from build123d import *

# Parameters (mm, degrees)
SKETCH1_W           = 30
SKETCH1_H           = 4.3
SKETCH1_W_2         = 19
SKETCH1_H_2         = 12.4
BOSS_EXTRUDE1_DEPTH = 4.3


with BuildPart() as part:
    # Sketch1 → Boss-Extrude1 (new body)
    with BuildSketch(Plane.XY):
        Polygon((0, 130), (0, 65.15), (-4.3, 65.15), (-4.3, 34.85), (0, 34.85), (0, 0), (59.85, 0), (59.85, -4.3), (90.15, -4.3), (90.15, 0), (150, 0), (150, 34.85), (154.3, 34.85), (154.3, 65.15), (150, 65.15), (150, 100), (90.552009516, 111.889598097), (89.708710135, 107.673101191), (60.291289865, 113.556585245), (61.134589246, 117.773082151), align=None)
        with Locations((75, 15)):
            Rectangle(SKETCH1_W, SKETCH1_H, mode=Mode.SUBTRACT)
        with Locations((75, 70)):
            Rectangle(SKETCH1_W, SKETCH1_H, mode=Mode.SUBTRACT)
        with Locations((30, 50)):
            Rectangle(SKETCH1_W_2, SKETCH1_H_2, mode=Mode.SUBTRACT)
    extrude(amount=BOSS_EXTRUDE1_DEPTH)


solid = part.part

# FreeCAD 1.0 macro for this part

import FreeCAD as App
import Part
import Sketcher

V = App.Vector
Q = App.Units.Quantity

doc = App.newDocument("Part")
params = doc.addObject("Spreadsheet::Sheet", "Params")
for row, (alias, value) in enumerate([
    ("sketch1_width", "30 mm"),
    ("sketch1_width2", "19 mm"),
    ("sketch1_length", "30 mm"),
    ("sketch1_width3", "4.3 mm"),
    ("sketch1_width4", "30.3 mm"),
    ("pad1_length", "4.3 mm"),
], start=1):
    params.set(f"A{row}", alias)
    params.set(f"B{row}", "=" + value)
    params.setAlias(f"B{row}", alias)

body = doc.addObject("PartDesign::Body", "Body")

# Sketch on XY plane
sketch1 = doc.addObject("Sketcher::SketchObject", "Sketch")
body.addObject(sketch1)
sketch1.AttachmentSupport = (doc.XY_Plane, [""])
sketch1.MapMode = "FlatFace"
sketch1.addGeometry(Part.LineSegment(V(0, 130, 0), V(0, 65.2, 0)), False)
sketch1.addGeometry(Part.LineSegment(V(0, 65.2, 0), V(-4.3, 65.2, 0)), False)
sketch1.addGeometry(Part.LineSegment(V(-4.3, 65.2, 0), V(-4.3, 34.9, 0)), False)
sketch1.addGeometry(Part.LineSegment(V(-4.3, 34.9, 0), V(0, 34.9, 0)), False)
sketch1.addGeometry(Part.LineSegment(V(0, 34.9, 0), V(0, 0, 0)), False)
sketch1.addGeometry(Part.LineSegment(V(0, 0, 0), V(59.9, 0, 0)), False)
sketch1.addGeometry(Part.LineSegment(V(59.9, 0, 0), V(59.9, -4.3, 0)), False)
sketch1.addGeometry(Part.LineSegment(V(59.9, -4.3, 0), V(90.2, -4.3, 0)), False)
sketch1.addGeometry(Part.LineSegment(V(90.2, -4.3, 0), V(90.2, 0, 0)), False)
sketch1.addGeometry(Part.LineSegment(V(90.2, 0, 0), V(150, 0, 0)), False)
sketch1.addGeometry(Part.LineSegment(V(150, 0, 0), V(150, 34.9, 0)), False)
sketch1.addGeometry(Part.LineSegment(V(150, 34.9, 0), V(154.3, 34.9, 0)), False)
sketch1.addGeometry(Part.LineSegment(V(154.3, 34.9, 0), V(154.3, 65.2, 0)), False)
sketch1.addGeometry(Part.LineSegment(V(154.3, 65.2, 0), V(150, 65.2, 0)), False)
sketch1.addGeometry(Part.LineSegment(V(150, 65.2, 0), V(150, 100, 0)), False)
sketch1.addGeometry(Part.LineSegment(V(150, 100, 0), V(90.6, 111.9, 0)), False)
sketch1.addGeometry(Part.LineSegment(V(90.6, 111.9, 0), V(89.7, 107.7, 0)), False)
sketch1.addGeometry(Part.LineSegment(V(89.7, 107.7, 0), V(60.3, 113.6, 0)), False)
sketch1.addGeometry(Part.LineSegment(V(60.3, 113.6, 0), V(61.1, 117.8, 0)), False)
sketch1.addGeometry(Part.LineSegment(V(61.1, 117.8, 0), V(0, 130, 0)), False)
sketch1.addGeometry(Part.LineSegment(V(90, 12.8, 0), V(60, 12.8, 0)), False)
sketch1.addGeometry(Part.LineSegment(V(60, 12.8, 0), V(60, 17.1, 0)), False)
sketch1.addGeometry(Part.LineSegment(V(60, 17.1, 0), V(90, 17.1, 0)), False)
sketch1.addGeometry(Part.LineSegment(V(90, 17.1, 0), V(90, 12.8, 0)), False)
sketch1.addGeometry(Part.LineSegment(V(39.5, 43.8, 0), V(20.5, 43.8, 0)), False)
sketch1.addGeometry(Part.LineSegment(V(20.5, 43.8, 0), V(20.5, 56.2, 0)), False)
sketch1.addGeometry(Part.LineSegment(V(20.5, 56.2, 0), V(39.5, 56.2, 0)), False)
sketch1.addGeometry(Part.LineSegment(V(39.5, 56.2, 0), V(39.5, 43.8, 0)), False)
sketch1.addGeometry(Part.LineSegment(V(90, 67.8, 0), V(60, 67.8, 0)), False)
sketch1.addGeometry(Part.LineSegment(V(60, 67.8, 0), V(60, 72.2, 0)), False)
sketch1.addGeometry(Part.LineSegment(V(60, 72.2, 0), V(90, 72.2, 0)), False)
sketch1.addGeometry(Part.LineSegment(V(90, 72.2, 0), V(90, 67.8, 0)), False)
sketch1.addConstraint(Sketcher.Constraint("Coincident", 0, 2, 1, 1))
sketch1.addConstraint(Sketcher.Constraint("Coincident", 1, 2, 2, 1))
sketch1.addConstraint(Sketcher.Constraint("Coincident", 2, 2, 3, 1))
sketch1.addConstraint(Sketcher.Constraint("Coincident", 3, 2, 4, 1))
sketch1.addConstraint(Sketcher.Constraint("Coincident", 4, 2, 5, 1))
sketch1.addConstraint(Sketcher.Constraint("Coincident", 5, 2, 6, 1))
sketch1.addConstraint(Sketcher.Constraint("Coincident", 6, 2, 7, 1))
sketch1.addConstraint(Sketcher.Constraint("Coincident", 7, 2, 8, 1))
sketch1.addConstraint(Sketcher.Constraint("Coincident", 8, 2, 9, 1))
sketch1.addConstraint(Sketcher.Constraint("Coincident", 9, 2, 10, 1))
sketch1.addConstraint(Sketcher.Constraint("Coincident", 10, 2, 11, 1))
sketch1.addConstraint(Sketcher.Constraint("Coincident", 11, 2, 12, 1))
sketch1.addConstraint(Sketcher.Constraint("Coincident", 12, 2, 13, 1))
sketch1.addConstraint(Sketcher.Constraint("Coincident", 13, 2, 14, 1))
sketch1.addConstraint(Sketcher.Constraint("Coincident", 14, 2, 15, 1))
sketch1.addConstraint(Sketcher.Constraint("Coincident", 15, 2, 16, 1))
sketch1.addConstraint(Sketcher.Constraint("Coincident", 16, 2, 17, 1))
sketch1.addConstraint(Sketcher.Constraint("Coincident", 17, 2, 18, 1))
sketch1.addConstraint(Sketcher.Constraint("Coincident", 18, 2, 19, 1))
sketch1.addConstraint(Sketcher.Constraint("Coincident", 19, 2, 0, 1))
sketch1.addConstraint(Sketcher.Constraint("Coincident", 20, 2, 21, 1))
sketch1.addConstraint(Sketcher.Constraint("Coincident", 21, 2, 22, 1))
sketch1.addConstraint(Sketcher.Constraint("Coincident", 22, 2, 23, 1))
sketch1.addConstraint(Sketcher.Constraint("Coincident", 23, 2, 20, 1))
sketch1.addConstraint(Sketcher.Constraint("Coincident", 24, 2, 25, 1))
sketch1.addConstraint(Sketcher.Constraint("Coincident", 25, 2, 26, 1))
sketch1.addConstraint(Sketcher.Constraint("Coincident", 26, 2, 27, 1))
sketch1.addConstraint(Sketcher.Constraint("Coincident", 27, 2, 24, 1))
sketch1.addConstraint(Sketcher.Constraint("Coincident", 28, 2, 29, 1))
sketch1.addConstraint(Sketcher.Constraint("Coincident", 29, 2, 30, 1))
sketch1.addConstraint(Sketcher.Constraint("Coincident", 30, 2, 31, 1))
sketch1.addConstraint(Sketcher.Constraint("Coincident", 31, 2, 28, 1))
sketch1.addConstraint(Sketcher.Constraint("Vertical", 0))
sketch1.addConstraint(Sketcher.Constraint("Horizontal", 1))
sketch1.addConstraint(Sketcher.Constraint("Vertical", 2))
sketch1.addConstraint(Sketcher.Constraint("Horizontal", 3))
sketch1.addConstraint(Sketcher.Constraint("Vertical", 4))
sketch1.addConstraint(Sketcher.Constraint("Horizontal", 5))
sketch1.addConstraint(Sketcher.Constraint("Vertical", 6))
sketch1.addConstraint(Sketcher.Constraint("Horizontal", 7))
sketch1.addConstraint(Sketcher.Constraint("Vertical", 8))
sketch1.addConstraint(Sketcher.Constraint("Horizontal", 9))
sketch1.addConstraint(Sketcher.Constraint("Vertical", 10))
sketch1.addConstraint(Sketcher.Constraint("Horizontal", 11))
sketch1.addConstraint(Sketcher.Constraint("Vertical", 12))
sketch1.addConstraint(Sketcher.Constraint("Horizontal", 13))
sketch1.addConstraint(Sketcher.Constraint("Vertical", 14))
sketch1.addConstraint(Sketcher.Constraint("Horizontal", 20))
sketch1.addConstraint(Sketcher.Constraint("Vertical", 21))
sketch1.addConstraint(Sketcher.Constraint("Horizontal", 22))
sketch1.addConstraint(Sketcher.Constraint("Vertical", 23))
sketch1.addConstraint(Sketcher.Constraint("Horizontal", 24))
sketch1.addConstraint(Sketcher.Constraint("Vertical", 25))
sketch1.addConstraint(Sketcher.Constraint("Horizontal", 26))
sketch1.addConstraint(Sketcher.Constraint("Vertical", 27))
sketch1.addConstraint(Sketcher.Constraint("Horizontal", 28))
sketch1.addConstraint(Sketcher.Constraint("Vertical", 29))
sketch1.addConstraint(Sketcher.Constraint("Horizontal", 30))
sketch1.addConstraint(Sketcher.Constraint("Vertical", 31))
sketch1.addConstraint(Sketcher.Constraint("Coincident", 4, 2, -1, 1))
sketch1.addConstraint(Sketcher.Constraint("PointOnObject", 0, 2, -2))
sketch1.addConstraint(Sketcher.Constraint("PointOnObject", 8, 2, -1))
sketch1.addConstraint(Sketcher.Constraint("Perpendicular", 15, 16))
sketch1.addConstraint(Sketcher.Constraint("Perpendicular", 16, 17))
sketch1.addConstraint(Sketcher.Constraint("Perpendicular", 17, 18))
sketch1.addConstraint(Sketcher.Constraint("Perpendicular", 18, 19))
sketch1.addConstraint(Sketcher.Constraint("Horizontal", 3, 2, 10, 2))
sketch1.addConstraint(Sketcher.Constraint("Horizontal", 1, 2, 12, 2))
sketch1.addConstraint(Sketcher.Constraint("Vertical", 10, 2, 13, 2))
sketch1.addConstraint(Sketcher.Constraint("Vertical", 21, 2, 28, 2))
sketch1.addConstraint(Sketcher.Constraint("Vertical", 23, 2, 30, 2))
sketch1.addConstraint(Sketcher.Constraint("Equal", 5, 9))
sketch1.addConstraint(Sketcher.Constraint("Equal", 3, 11))
sketch1.addConstraint(Sketcher.Constraint("Equal", 7, 2))
sketch1.addConstraint(Sketcher.Constraint("Equal", 13, 6))
sketch1.addConstraint(Sketcher.Constraint("Equal", 10, 14))
sketch1.addConstraint(Sketcher.Constraint("Equal", 8, 21))
sketch1.addConstraint(Sketcher.Constraint("Equal", 23, 29))
sketch1.addConstraint(Sketcher.Constraint("Equal", 16, 18))
sketch1.addConstraint(Sketcher.Constraint("DistanceX", 20, 2, 20, 1, Q("30 mm")))
sketch1.addConstraint(Sketcher.Constraint("DistanceX", 24, 2, 24, 1, Q("19 mm")))
sketch1.addConstraint(Sketcher.Constraint("Distance", 17, Q("30 mm")))
sketch1.addConstraint(Sketcher.Constraint("DistanceX", 1, 2, 1, 1, Q("4.3 mm")))
sketch1.addConstraint(Sketcher.Constraint("DistanceX", 7, 1, 7, 2, Q("30.3 mm")))
sketch1.addConstraint(Sketcher.Constraint("DistanceY", 25, 1, 25, 2, Q("12.4 mm")))
sketch1.addConstraint(Sketcher.Constraint("DistanceX", -1, 1, 9, 2, Q("150 mm")))
sketch1.addConstraint(Sketcher.Constraint("DistanceY", -1, 1, 14, 2, Q("100 mm")))
sketch1.addConstraint(Sketcher.Constraint("DistanceY", -1, 1, 19, 2, Q("130 mm")))
sketch1.addConstraint(Sketcher.Constraint("DistanceX", -1, 1, 20, 2, Q("60 mm")))
sketch1.addConstraint(Sketcher.Constraint("Distance", 16, Q("4.3 mm")))
sketch1.addConstraint(Sketcher.Constraint("DistanceX", -1, 1, 24, 2, Q("20.5 mm")))
sketch1.addConstraint(Sketcher.Constraint("DistanceY", -1, 1, 24, 2, Q("43.8 mm")))
sketch1.addConstraint(Sketcher.Constraint("DistanceY", -1, 1, 20, 2, Q("12.85 mm")))
sketch1.addConstraint(Sketcher.Constraint("DistanceY", -1, 1, 28, 2, Q("67.85 mm")))
sketch1.addConstraint(Sketcher.Constraint("DistanceY", -1, 1, 15, 2, Q("111.889598 mm")))
sketch1.setExpression("Constraints[79]", "Params.sketch1_width")
sketch1.setExpression("Constraints[80]", "Params.sketch1_width2")
sketch1.setExpression("Constraints[81]", "Params.sketch1_length")
sketch1.setExpression("Constraints[82]", "Params.sketch1_width3")
sketch1.setExpression("Constraints[83]", "Params.sketch1_width4")
pad1 = doc.addObject("PartDesign::Pad", "Pad")
body.addObject(pad1)
pad1.Profile = sketch1
pad1.setExpression("Length", "Params.pad1_length")

doc.recompute()
